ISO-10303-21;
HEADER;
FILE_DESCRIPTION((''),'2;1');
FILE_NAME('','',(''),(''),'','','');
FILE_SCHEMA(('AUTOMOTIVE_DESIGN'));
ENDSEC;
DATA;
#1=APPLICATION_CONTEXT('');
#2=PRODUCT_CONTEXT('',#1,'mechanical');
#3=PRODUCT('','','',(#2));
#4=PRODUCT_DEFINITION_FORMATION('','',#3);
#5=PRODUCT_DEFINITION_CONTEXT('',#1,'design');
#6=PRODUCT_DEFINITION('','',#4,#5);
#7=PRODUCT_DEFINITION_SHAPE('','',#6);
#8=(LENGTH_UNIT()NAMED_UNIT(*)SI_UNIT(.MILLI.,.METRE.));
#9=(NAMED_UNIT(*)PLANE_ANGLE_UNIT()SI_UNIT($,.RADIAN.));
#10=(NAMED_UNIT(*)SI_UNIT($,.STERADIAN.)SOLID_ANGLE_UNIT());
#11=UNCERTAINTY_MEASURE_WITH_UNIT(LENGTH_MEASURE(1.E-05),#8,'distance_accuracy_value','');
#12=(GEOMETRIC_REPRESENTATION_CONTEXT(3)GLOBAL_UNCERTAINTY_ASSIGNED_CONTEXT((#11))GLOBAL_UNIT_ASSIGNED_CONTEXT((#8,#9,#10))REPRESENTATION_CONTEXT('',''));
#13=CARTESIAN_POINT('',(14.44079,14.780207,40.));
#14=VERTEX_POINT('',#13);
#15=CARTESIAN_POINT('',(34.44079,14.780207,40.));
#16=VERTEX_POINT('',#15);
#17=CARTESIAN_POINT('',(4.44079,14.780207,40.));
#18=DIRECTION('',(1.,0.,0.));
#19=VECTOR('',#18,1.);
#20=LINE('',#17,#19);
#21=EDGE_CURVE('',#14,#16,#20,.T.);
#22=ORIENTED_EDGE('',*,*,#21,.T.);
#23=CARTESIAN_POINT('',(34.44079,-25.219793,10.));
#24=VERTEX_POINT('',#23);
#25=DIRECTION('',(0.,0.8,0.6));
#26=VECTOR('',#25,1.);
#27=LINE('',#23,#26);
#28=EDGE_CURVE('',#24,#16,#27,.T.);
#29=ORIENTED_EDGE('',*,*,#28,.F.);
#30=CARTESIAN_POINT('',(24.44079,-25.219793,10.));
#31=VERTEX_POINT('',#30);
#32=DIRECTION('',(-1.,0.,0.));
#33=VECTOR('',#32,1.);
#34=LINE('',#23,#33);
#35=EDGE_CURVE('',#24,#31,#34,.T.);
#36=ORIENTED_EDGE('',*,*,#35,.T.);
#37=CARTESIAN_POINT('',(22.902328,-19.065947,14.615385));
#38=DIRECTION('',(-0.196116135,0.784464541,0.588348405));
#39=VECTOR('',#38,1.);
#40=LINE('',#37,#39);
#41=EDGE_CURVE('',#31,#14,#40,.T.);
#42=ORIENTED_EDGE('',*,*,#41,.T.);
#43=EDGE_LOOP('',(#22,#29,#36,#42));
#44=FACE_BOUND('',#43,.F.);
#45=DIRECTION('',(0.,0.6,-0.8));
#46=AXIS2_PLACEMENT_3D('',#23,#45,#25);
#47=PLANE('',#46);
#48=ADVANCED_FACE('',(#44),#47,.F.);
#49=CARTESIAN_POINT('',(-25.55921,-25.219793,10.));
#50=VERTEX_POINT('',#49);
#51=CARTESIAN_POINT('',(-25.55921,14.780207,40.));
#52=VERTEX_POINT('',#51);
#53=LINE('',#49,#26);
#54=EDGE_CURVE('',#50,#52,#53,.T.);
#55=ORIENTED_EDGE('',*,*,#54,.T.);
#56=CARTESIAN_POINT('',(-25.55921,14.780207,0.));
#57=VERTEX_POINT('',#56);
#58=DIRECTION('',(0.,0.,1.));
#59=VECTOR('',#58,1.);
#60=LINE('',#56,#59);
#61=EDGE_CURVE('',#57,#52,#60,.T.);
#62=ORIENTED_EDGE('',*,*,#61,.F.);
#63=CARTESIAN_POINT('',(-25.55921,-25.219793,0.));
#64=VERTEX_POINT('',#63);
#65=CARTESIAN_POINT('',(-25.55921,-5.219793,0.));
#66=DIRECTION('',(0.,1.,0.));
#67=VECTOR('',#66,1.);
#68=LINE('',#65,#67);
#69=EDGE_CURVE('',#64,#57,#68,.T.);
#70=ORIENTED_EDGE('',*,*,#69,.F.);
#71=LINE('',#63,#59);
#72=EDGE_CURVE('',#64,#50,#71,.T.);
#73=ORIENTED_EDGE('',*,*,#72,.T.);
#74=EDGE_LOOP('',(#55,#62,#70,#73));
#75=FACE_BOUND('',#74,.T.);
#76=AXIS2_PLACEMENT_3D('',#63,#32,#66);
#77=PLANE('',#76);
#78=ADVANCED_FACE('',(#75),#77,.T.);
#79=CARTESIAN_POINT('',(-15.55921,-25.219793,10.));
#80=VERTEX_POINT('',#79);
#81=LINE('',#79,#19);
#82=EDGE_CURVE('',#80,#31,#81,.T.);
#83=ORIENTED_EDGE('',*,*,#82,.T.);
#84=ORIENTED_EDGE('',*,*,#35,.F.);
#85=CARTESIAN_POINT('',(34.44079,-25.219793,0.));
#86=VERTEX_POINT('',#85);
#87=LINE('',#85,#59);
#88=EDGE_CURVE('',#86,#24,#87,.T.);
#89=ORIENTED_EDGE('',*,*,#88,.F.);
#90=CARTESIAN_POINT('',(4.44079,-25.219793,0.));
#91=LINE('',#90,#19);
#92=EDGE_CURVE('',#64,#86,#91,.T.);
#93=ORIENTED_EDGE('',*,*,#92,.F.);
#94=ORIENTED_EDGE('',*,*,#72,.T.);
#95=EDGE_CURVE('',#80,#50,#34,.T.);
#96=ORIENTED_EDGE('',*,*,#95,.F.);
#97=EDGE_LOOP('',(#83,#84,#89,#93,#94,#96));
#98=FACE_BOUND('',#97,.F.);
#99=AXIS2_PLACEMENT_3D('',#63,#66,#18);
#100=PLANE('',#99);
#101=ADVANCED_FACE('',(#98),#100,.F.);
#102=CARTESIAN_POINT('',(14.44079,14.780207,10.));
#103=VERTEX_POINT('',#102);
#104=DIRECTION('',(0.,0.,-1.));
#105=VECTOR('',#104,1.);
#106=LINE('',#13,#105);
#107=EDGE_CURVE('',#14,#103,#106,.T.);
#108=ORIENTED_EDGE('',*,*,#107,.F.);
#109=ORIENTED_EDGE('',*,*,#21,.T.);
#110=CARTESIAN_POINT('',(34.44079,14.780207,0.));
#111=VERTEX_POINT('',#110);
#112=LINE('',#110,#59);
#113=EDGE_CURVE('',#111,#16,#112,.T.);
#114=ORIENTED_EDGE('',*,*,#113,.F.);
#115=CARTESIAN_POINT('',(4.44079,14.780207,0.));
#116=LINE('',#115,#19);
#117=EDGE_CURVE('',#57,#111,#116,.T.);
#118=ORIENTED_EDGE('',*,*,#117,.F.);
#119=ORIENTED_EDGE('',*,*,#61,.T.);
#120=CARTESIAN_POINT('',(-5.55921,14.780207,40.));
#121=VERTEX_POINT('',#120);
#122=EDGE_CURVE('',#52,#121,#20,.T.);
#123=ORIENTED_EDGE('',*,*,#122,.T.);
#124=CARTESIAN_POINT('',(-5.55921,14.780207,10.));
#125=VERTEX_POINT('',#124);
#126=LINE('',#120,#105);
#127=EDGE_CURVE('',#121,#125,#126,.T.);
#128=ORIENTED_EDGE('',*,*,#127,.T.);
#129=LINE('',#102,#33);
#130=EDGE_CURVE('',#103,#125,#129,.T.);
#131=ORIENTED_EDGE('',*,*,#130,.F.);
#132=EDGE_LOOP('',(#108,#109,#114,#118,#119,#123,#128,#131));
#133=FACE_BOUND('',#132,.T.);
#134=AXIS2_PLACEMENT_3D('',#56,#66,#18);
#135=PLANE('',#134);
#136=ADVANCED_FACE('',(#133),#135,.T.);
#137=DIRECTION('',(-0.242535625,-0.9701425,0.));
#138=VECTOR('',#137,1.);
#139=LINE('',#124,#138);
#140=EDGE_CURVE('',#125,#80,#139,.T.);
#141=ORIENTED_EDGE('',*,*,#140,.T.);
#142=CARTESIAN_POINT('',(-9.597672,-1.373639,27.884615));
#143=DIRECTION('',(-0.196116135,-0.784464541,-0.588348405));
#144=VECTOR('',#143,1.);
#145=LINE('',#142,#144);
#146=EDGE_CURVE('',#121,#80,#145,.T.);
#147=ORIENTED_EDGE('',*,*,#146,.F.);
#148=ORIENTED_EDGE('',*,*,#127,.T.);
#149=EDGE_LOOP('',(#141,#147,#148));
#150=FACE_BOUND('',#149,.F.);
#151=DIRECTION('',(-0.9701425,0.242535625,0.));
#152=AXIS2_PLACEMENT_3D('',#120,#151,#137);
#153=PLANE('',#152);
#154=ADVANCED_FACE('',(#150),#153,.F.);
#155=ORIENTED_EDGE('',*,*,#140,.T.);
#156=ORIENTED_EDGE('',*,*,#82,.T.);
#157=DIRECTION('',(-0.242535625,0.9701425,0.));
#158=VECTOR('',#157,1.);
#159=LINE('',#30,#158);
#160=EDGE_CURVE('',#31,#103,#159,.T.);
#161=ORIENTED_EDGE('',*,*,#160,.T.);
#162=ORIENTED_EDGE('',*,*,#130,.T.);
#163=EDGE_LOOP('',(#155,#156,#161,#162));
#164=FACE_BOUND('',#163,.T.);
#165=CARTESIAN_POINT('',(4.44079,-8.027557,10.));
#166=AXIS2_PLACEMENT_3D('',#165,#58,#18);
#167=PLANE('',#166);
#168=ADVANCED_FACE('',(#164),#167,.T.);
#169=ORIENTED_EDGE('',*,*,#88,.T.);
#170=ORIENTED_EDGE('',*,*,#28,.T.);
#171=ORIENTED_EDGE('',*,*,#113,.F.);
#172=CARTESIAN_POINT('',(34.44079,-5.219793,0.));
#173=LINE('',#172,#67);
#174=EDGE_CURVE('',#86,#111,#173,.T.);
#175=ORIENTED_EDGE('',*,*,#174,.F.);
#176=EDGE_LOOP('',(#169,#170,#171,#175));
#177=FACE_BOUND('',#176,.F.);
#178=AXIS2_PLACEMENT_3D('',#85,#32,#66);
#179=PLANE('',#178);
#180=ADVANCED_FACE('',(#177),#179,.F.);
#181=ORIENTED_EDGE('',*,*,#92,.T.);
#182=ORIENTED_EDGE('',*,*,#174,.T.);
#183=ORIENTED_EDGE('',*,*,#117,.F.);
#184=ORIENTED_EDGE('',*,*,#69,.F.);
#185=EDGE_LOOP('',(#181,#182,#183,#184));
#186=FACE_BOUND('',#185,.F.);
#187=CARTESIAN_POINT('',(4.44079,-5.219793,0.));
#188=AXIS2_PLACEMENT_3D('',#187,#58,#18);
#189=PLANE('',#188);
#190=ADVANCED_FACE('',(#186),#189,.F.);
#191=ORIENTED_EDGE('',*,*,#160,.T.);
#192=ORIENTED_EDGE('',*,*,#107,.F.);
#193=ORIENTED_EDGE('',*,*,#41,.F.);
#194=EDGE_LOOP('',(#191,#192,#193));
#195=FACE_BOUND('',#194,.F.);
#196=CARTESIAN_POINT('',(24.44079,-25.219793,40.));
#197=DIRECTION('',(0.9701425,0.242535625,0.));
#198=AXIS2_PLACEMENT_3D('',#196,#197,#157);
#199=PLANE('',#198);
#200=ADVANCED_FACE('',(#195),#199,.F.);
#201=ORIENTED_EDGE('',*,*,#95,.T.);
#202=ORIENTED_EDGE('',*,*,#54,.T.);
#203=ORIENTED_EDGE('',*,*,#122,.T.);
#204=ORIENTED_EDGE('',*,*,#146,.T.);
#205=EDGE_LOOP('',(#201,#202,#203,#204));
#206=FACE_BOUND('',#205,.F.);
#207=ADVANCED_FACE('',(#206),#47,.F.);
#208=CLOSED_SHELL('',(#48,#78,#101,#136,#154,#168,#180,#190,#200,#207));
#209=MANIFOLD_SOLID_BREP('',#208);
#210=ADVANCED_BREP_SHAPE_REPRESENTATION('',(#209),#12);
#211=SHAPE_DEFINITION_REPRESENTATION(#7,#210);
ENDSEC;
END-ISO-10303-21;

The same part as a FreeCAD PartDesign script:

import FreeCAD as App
import Part
import Sketcher
from FreeCAD import Vector


def add_polygon(sketch, points):
    """Adds a closed chain of lines whose ends are joined by coincident constraints."""
    first, n = sketch.GeometryCount, len(points)
    for a, b in zip(points, points[1:] + points[:1]):
        sketch.addGeometry(Part.LineSegment(App.Vector(*a, 0), App.Vector(*b, 0)), False)
    for i in range(n):
        sketch.addConstraint(Sketcher.Constraint("Coincident", first + i, 2, first + (i + 1) % n, 1))

doc = App.newDocument("Part")
body = doc.addObject("PartDesign::Body", "Body")

# Sketch on XY plane
sketch1 = body.newObject("Sketcher::SketchObject", "Sketch")
sketch1.AttachmentSupport = (doc.getObject("XY_Plane"), [""])
sketch1.MapMode = "FlatFace"
add_polygon(sketch1, [(-25.55921, 14.780207), (-25.55921, -25.219793), (34.44079, -25.219793), (34.44079, 14.780207)])  # lines 0-3
sketch1.addConstraint([
    Sketcher.Constraint("Vertical", 0),
    Sketcher.Constraint("Horizontal", 1),
    Sketcher.Constraint("Vertical", 2),
    Sketcher.Constraint("Horizontal", 3),
    Sketcher.Constraint("DistanceX", 1, 1, 1, 2, 60.0),
    Sketcher.Constraint("DistanceY", 0, 2, 0, 1, 40.0),
    Sketcher.Constraint("DistanceX", 0, 2, -1, 1, 25.55921),
    Sketcher.Constraint("DistanceY", 0, 2, -1, 1, 25.219793),
])
pad1 = body.newObject("PartDesign::Pad", "Pad")
pad1.Profile = sketch1
pad1.Length = 40

# Sketch on XY plane
sketch2 = body.newObject("Sketcher::SketchObject", "Sketch001")
sketch2.AttachmentSupport = (doc.getObject("XY_Plane"), [""])
sketch2.MapMode = "FlatFace"
sketch2.AttachmentOffset = App.Placement(Vector(0, 0, 40), App.Rotation())
add_polygon(sketch2, [(-5.55921, 14.780207), (-15.55921, -25.219793), (24.44079, -25.219793), (14.44079, 14.780207)])  # lines 0-3
sketch2.addConstraint([
    Sketcher.Constraint("Horizontal", 1),
    Sketcher.Constraint("Horizontal", 3),
    Sketcher.Constraint("Equal", 0, 2),
    Sketcher.Constraint("DistanceX", 1, 1, 1, 2, 40.0),
    Sketcher.Constraint("DistanceX", 3, 2, 3, 1, 20.0),
    Sketcher.Constraint("DistanceY", 1, 2, 2, 2, 40.0),
    Sketcher.Constraint("DistanceX", 0, 2, -1, 1, 15.55921),
    Sketcher.Constraint("DistanceY", 0, 2, -1, 1, 25.219793),
])
pocket1 = body.newObject("PartDesign::Pocket", "Pocket")
pocket1.Profile = sketch2
pocket1.Length = 30

# Sketch on YZ plane
sketch3 = body.newObject("Sketcher::SketchObject", "Sketch002")
sketch3.AttachmentSupport = (doc.getObject("YZ_Plane"), [""])
sketch3.MapMode = "FlatFace"
sketch3.AttachmentOffset = App.Placement(Vector(0, 0, 34.44079), App.Rotation())
add_polygon(sketch3, [(-25.219793, 40), (-25.219793, 10), (14.780207, 40)])  # lines 0-2
sketch3.addConstraint([
    Sketcher.Constraint("Vertical", 0),
    Sketcher.Constraint("Horizontal", 2),
    Sketcher.Constraint("DistanceX", 2, 2, 2, 1, 40.0),
    Sketcher.Constraint("DistanceY", 0, 2, 0, 1, 30.0),
    Sketcher.Constraint("DistanceY", -1, 1, 0, 2, 10.0),
    Sketcher.Constraint("DistanceX", 0, 2, -1, 1, 25.219793),
])
pocket2 = body.newObject("PartDesign::Pocket", "Pocket001")
pocket2.Profile = sketch3
pocket2.Length = 60

doc.recompute()
